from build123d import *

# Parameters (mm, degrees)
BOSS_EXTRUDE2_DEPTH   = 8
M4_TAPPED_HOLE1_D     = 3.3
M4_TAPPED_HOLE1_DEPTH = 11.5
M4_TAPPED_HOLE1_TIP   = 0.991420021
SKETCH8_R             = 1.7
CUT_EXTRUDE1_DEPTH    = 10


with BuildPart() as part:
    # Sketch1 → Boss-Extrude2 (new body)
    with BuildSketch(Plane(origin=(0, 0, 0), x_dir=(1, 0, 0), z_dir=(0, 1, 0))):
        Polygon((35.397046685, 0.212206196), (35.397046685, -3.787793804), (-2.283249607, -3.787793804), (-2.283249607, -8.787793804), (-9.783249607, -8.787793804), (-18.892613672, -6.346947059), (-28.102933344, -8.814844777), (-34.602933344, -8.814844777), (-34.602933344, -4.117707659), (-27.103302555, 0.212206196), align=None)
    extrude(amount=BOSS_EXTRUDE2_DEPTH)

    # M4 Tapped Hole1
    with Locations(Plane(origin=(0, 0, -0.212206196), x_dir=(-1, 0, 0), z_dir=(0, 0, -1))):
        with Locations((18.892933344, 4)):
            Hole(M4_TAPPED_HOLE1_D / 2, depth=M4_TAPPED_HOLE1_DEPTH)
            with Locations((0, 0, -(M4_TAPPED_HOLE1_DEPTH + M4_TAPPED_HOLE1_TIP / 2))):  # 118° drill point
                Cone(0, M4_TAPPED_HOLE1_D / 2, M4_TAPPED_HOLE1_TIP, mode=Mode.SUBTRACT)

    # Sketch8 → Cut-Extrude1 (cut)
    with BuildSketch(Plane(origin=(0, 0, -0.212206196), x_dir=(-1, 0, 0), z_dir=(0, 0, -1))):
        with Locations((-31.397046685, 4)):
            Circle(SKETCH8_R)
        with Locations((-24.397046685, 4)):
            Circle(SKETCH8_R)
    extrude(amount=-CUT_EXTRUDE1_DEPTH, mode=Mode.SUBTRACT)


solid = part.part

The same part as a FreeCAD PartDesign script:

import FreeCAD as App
import Part
import Sketcher
Q = App.Units.Quantity

doc = App.newDocument("Part")
body = doc.addObject("PartDesign::Body", "Body")

# Sketch on XZ plane
sketch1 = doc.addObject("Sketcher::SketchObject", "Sketch")
body.addObject(sketch1)
sketch1.AttachmentSupport = (doc.XZ_Plane, [""])
sketch1.MapMode = "FlatFace"
sketch1.addGeometry([
    Part.LineSegment(App.Vector(35.4, 3.8, 0), App.Vector(35.4, -0.2, 0)),  # 0
    Part.LineSegment(App.Vector(35.4, -0.2, 0), App.Vector(-27.1, -0.2, 0)),  # 1
    Part.LineSegment(App.Vector(-27.1, -0.2, 0), App.Vector(-34.6, 4.1, 0)),  # 2
    Part.LineSegment(App.Vector(-34.6, 4.1, 0), App.Vector(-34.6, 8.8, 0)),  # 3
    Part.LineSegment(App.Vector(-34.6, 8.8, 0), App.Vector(-28.1, 8.8, 0)),  # 4
    Part.LineSegment(App.Vector(-28.1, 8.8, 0), App.Vector(-18.9, 6.3, 0)),  # 5
    Part.LineSegment(App.Vector(-18.9, 6.3, 0), App.Vector(-9.8, 8.8, 0)),  # 6
    Part.LineSegment(App.Vector(-9.8, 8.8, 0), App.Vector(-2.3, 8.8, 0)),  # 7
    Part.LineSegment(App.Vector(-2.3, 8.8, 0), App.Vector(-2.3, 3.8, 0)),  # 8
    Part.LineSegment(App.Vector(-2.3, 3.8, 0), App.Vector(35.4, 3.8, 0)),  # 9
], False)
sketch1.addConstraint([
    Sketcher.Constraint("Coincident", 0, 2, 1, 1),
    Sketcher.Constraint("Coincident", 1, 2, 2, 1),
    Sketcher.Constraint("Coincident", 2, 2, 3, 1),
    Sketcher.Constraint("Coincident", 3, 2, 4, 1),
    Sketcher.Constraint("Coincident", 4, 2, 5, 1),
    Sketcher.Constraint("Coincident", 5, 2, 6, 1),
    Sketcher.Constraint("Coincident", 6, 2, 7, 1),
    Sketcher.Constraint("Coincident", 7, 2, 8, 1),
    Sketcher.Constraint("Coincident", 8, 2, 9, 1),
    Sketcher.Constraint("Coincident", 9, 2, 0, 1),
    Sketcher.Constraint("Vertical", 0),
    Sketcher.Constraint("Horizontal", 1),
    Sketcher.Constraint("Vertical", 3),
    Sketcher.Constraint("Horizontal", 4),
    Sketcher.Constraint("Horizontal", 7),
    Sketcher.Constraint("Vertical", 8),
    Sketcher.Constraint("Horizontal", 9),
    Sketcher.Constraint("DistanceY", 0, 2, 0, 1, 4.0),
    Sketcher.Constraint("DistanceY", 8, 2, 8, 1, 5.0),
    Sketcher.Constraint("Angle", 2, Q("150 deg")),
    Sketcher.Constraint("Angle", 5, Q("-15 deg")),
    Sketcher.Constraint("Angle", 6, Q("15 deg")),
    Sketcher.Constraint("DistanceX", 4, 1, 4, 2, 6.5),
    Sketcher.Constraint("DistanceX", 7, 1, 7, 2, 7.5),
    Sketcher.Constraint("DistanceX", 1, 2, 1, 1, 62.500349),
    Sketcher.Constraint("DistanceX", 9, 1, 9, 2, 37.680296),
    Sketcher.Constraint("DistanceY", 3, 1, 3, 2, 4.697137),
    Sketcher.Constraint("DistanceX", 6, 2, -1, 1, 9.78325),
    Sketcher.Constraint("DistanceX", 2, 2, 1, 2, 7.499631),
    Sketcher.Constraint("DistanceY", 0, 2, -1, 1, 0.212206),
])
pad1 = doc.addObject("PartDesign::Pad", "Pad")
body.addObject(pad1)
pad1.Profile = sketch1
pad1.Length = 8
pad1.Reversed = True

# Sketch on XY plane
sketch2 = doc.addObject("Sketcher::SketchObject", "Sketch001")
body.addObject(sketch2)
sketch2.AttachmentSupport = (doc.XY_Plane, [""])
sketch2.MapMode = "FlatFace"
sketch2.AttachmentOffset = App.Placement(App.Vector(0, 0, -0.212206), App.Rotation())
sketch2.addGeometry(Part.Circle(App.Vector(-18.9, 4, 0), App.Vector(0, 0, 1), 1.6), False)
sketch2.addConstraint([
    Sketcher.Constraint("Diameter", 0, 3.3),
    Sketcher.Constraint("DistanceY", -1, 1, 0, 3, 4.0),
    Sketcher.Constraint("DistanceX", 0, 3, -1, 1, 18.892933),
])
doc.recompute()
hole = doc.addObject("PartDesign::Hole", "Hole")
body.addObject(hole)
hole.Profile = sketch2
hole.ThreadType = "None"
hole.Diameter = 3.3
hole.DepthType = "Dimension"
hole.Depth = 11.5
hole.DrillPoint = "Angled"
hole.DrillPointAngle = 118
hole.Reversed = True

# Sketch on XY plane
sketch3 = doc.addObject("Sketcher::SketchObject", "Sketch002")
body.addObject(sketch3)
sketch3.AttachmentSupport = (doc.XY_Plane, [""])
sketch3.MapMode = "FlatFace"
sketch3.AttachmentOffset = App.Placement(App.Vector(0, 0, -0.212206), App.Rotation())
sketch3.addGeometry([
    Part.Circle(App.Vector(31.4, 4, 0), App.Vector(0, 0, 1), 1.7),
    Part.Circle(App.Vector(24.4, 4, 0), App.Vector(0, 0, 1), 1.7),
], False)
sketch3.addConstraint([
    Sketcher.Constraint("Equal", 0, 1),
    Sketcher.Constraint("Horizontal", 0, 3, 1, 3),
    Sketcher.Constraint("Diameter", 0, 3.4),
    Sketcher.Constraint("DistanceY", -1, 1, 0, 3, 4.0),
    Sketcher.Constraint("DistanceX", 1, 3, 0, 3, 7.0),
    Sketcher.Constraint("DistanceX", -1, 1, 0, 3, 31.397047),
])
pocket1 = doc.addObject("PartDesign::Pocket", "Pocket")
body.addObject(pocket1)
pocket1.Profile = sketch3
pocket1.Length = 10
pocket1.Reversed = True

doc.recompute()
